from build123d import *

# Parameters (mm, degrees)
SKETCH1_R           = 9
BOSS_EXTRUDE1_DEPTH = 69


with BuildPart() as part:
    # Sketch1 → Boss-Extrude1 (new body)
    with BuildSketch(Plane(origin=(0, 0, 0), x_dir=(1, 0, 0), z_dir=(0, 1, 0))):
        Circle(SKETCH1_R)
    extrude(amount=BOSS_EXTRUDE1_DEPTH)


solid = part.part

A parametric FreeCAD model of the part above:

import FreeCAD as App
import Part
import Sketcher
Q = App.Units.Quantity

doc = App.newDocument("Part")
body = doc.addObject("PartDesign::Body", "Body")

sketch1 = doc.addObject("Sketcher::SketchObject", "Sketch")
body.addObject(sketch1)
sketch1.AttachmentSupport = (doc.XZ_Plane, [""])
sketch1.MapMode = "FlatFace"
sketch1.addGeometry(Part.Circle(App.Vector(0, 0, 0), App.Vector(0, 0, 1), 9), False)
sketch1.addConstraint(Sketcher.Constraint("Coincident", 0, 3, -1, 1))
sketch1.addConstraint(Sketcher.Constraint("Diameter", 0, Q("18 mm")))
pad1 = doc.addObject("PartDesign::Pad", "Pad")
body.addObject(pad1)
pad1.Profile = sketch1
pad1.Length = 69
pad1.Reversed = True

doc.recompute()
